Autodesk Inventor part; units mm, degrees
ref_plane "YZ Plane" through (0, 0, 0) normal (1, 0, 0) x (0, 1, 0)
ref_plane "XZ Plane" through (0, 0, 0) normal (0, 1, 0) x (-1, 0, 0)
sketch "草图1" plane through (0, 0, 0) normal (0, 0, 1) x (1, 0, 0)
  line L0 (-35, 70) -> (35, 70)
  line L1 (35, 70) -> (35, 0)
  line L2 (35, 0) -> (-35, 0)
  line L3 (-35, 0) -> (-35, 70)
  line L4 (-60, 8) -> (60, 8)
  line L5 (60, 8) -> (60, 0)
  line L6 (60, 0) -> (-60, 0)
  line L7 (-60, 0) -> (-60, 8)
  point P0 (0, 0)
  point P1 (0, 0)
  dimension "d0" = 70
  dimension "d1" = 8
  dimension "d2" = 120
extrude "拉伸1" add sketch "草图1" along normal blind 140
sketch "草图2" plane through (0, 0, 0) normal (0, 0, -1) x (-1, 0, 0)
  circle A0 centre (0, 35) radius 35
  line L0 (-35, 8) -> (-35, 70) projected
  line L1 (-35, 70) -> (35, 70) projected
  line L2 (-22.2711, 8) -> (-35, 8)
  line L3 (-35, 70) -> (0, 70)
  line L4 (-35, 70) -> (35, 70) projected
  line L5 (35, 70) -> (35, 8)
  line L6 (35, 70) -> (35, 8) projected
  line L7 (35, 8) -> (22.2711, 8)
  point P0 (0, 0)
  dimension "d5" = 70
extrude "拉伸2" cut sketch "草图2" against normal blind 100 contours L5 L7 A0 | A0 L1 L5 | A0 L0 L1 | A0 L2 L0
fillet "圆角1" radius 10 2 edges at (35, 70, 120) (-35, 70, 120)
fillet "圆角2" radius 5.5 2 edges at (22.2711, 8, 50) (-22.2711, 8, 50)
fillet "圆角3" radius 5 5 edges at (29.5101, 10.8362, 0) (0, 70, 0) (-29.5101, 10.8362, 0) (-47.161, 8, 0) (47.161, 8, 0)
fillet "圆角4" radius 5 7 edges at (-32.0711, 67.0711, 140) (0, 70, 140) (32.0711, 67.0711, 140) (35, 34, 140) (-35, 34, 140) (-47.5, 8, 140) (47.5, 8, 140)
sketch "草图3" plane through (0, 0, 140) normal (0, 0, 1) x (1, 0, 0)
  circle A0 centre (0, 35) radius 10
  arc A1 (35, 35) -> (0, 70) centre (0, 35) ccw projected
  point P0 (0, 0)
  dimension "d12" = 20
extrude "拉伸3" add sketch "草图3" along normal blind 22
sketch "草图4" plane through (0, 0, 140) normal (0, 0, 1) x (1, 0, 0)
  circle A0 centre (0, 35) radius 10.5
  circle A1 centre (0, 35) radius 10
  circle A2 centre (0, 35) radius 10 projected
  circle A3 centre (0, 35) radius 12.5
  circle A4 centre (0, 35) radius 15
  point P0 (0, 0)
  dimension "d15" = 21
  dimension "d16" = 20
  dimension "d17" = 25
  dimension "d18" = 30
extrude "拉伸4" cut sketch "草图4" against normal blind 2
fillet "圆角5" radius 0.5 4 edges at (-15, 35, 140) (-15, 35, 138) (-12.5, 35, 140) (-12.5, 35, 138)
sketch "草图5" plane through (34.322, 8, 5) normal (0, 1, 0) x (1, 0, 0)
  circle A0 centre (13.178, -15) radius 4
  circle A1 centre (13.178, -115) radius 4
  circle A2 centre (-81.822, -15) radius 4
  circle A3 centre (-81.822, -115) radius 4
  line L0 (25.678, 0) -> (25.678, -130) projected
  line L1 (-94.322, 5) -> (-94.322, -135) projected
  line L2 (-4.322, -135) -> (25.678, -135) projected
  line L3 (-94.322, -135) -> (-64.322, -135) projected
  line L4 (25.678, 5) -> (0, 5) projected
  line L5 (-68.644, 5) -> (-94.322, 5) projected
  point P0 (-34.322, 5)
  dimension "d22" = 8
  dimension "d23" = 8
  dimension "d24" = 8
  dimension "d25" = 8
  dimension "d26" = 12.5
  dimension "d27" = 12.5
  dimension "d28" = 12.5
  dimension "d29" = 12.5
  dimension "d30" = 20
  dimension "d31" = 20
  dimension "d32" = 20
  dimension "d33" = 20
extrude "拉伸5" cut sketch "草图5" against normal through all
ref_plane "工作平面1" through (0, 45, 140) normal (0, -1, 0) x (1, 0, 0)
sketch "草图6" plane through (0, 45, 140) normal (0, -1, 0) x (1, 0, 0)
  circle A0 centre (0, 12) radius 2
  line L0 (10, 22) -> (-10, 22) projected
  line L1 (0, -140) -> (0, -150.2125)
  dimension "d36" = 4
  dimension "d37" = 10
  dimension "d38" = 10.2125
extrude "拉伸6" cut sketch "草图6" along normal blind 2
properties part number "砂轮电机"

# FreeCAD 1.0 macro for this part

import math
import FreeCAD as App
import Part
import Sketcher
from FreeCAD import Vector
Q = App.Units.Quantity


def edges_at(feature, points):
    """Names of the edges that pass closest to the given points."""
    edges = feature.Shape.Edges
    near = lambda p: min(range(len(edges)), key=lambda i: edges[i].distToShape(Part.Vertex(*p))[0])
    return sorted({f"Edge{near(p) + 1}" for p in points})

doc = App.newDocument("Part")
params = doc.addObject("Spreadsheet::Sheet", "Params")
for row, (alias, value) in enumerate([
    ("sketch1_width", "70 mm"),
    ("sketch1_width2", "120 mm"),
    ("sketch1_height", "8 mm"),
    ("pad1_length", "140 mm"),
    ("sketch2_radius", "35 mm"),
    ("sketch2_height", "27 mm"),
    ("pocket1_length", "100 mm"),
    ("fillet_radius", "10 mm"),
    ("fillet2_radius", "5.5 mm"),
    ("fillet3_radius", "5 mm"),
    ("fillet4_radius", "5 mm"),
    ("sketch3_diameter", "20 mm"),
    ("pad2_length", "22 mm"),
    ("sketch4_diameter", "21 mm"),
    ("sketch4_diameter2", "20 mm"),
    ("sketch4_diameter3", "30 mm"),
    ("sketch4_diameter4", "25 mm"),
    ("pocket2_length", "2 mm"),
    ("fillet5_radius", "0.5 mm"),
    ("sketch5_diameter", "8 mm"),
    ("sketch6_diameter", "4 mm"),
    ("pocket4_length", "2 mm"),
], start=1):
    params.set(f"A{row}", alias)
    params.set(f"B{row}", "=" + value)
    params.setAlias(f"B{row}", alias)

body = doc.addObject("PartDesign::Body", "Body")

# Sketch on XY plane
sketch1 = body.newObject("Sketcher::SketchObject", "Sketch")
sketch1.AttachmentSupport = (doc.getObject("XY_Plane"), [""])
sketch1.MapMode = "FlatFace"
sketch1.addGeometry([
    Part.LineSegment(Vector(35, 70, 0), Vector(-35, 70, 0)),  # 0
    Part.LineSegment(Vector(-35, 70, 0), Vector(-35, 8, 0)),  # 1
    Part.LineSegment(Vector(-35, 8, 0), Vector(-60, 8, 0)),  # 2
    Part.LineSegment(Vector(-60, 8, 0), Vector(-60, 0, 0)),  # 3
    Part.LineSegment(Vector(-60, 0, 0), Vector(60, 0, 0)),  # 4
    Part.LineSegment(Vector(60, 0, 0), Vector(60, 8, 0)),  # 5
    Part.LineSegment(Vector(60, 8, 0), Vector(35, 8, 0)),  # 6
    Part.LineSegment(Vector(35, 8, 0), Vector(35, 70, 0)),  # 7
], False)
sketch1.addConstraint([
    Sketcher.Constraint("Coincident", 0, 2, 1, 1),
    Sketcher.Constraint("Coincident", 1, 2, 2, 1),
    Sketcher.Constraint("Coincident", 2, 2, 3, 1),
    Sketcher.Constraint("Coincident", 3, 2, 4, 1),
    Sketcher.Constraint("Coincident", 4, 2, 5, 1),
    Sketcher.Constraint("Coincident", 5, 2, 6, 1),
    Sketcher.Constraint("Coincident", 6, 2, 7, 1),
    Sketcher.Constraint("Coincident", 7, 2, 0, 1),
    Sketcher.Constraint("Horizontal", 0),
    Sketcher.Constraint("Vertical", 1),
    Sketcher.Constraint("Horizontal", 2),
    Sketcher.Constraint("Vertical", 3),
    Sketcher.Constraint("Horizontal", 4),
    Sketcher.Constraint("Vertical", 5),
    Sketcher.Constraint("Horizontal", 6),
    Sketcher.Constraint("Vertical", 7),
    Sketcher.Constraint("Symmetric", 3, 2, 4, 2, -1, 1),
    Sketcher.Constraint("Symmetric", 1, 2, 6, 2, -2),
    Sketcher.Constraint("DistanceX", 0, 2, 0, 1, Q("70 mm")),
    Sketcher.Constraint("DistanceX", 4, 1, 4, 2, Q("120 mm")),
    Sketcher.Constraint("DistanceY", 3, 2, 3, 1, Q("8 mm")),
    Sketcher.Constraint("DistanceY", -1, 1, 0, 2, Q("70 mm")),
])
sketch1.setExpression("Constraints[18]", "Params.sketch1_width")
sketch1.setExpression("Constraints[19]", "Params.sketch1_width2")
sketch1.setExpression("Constraints[20]", "Params.sketch1_height")
pad1 = body.newObject("PartDesign::Pad", "Pad")
pad1.Profile = sketch1
pad1.setExpression("Length", "Params.pad1_length")

# Sketch on XY plane
sketch2 = body.newObject("Sketcher::SketchObject", "Sketch001")
sketch2.AttachmentSupport = (doc.getObject("XY_Plane"), [""])
sketch2.MapMode = "FlatFace"
sketch2.addGeometry([
    Part.LineSegment(Vector(-35, 8, 0), Vector(-35, 35, 0)),  # 0
    Part.ArcOfCircle(Part.Circle(Vector(0, 35, 0), Vector(0, 0, 1), 35), math.radians(180), math.radians(230)),  # 1
    Part.LineSegment(Vector(-22, 8, 0), Vector(-35, 8, 0)),  # 2
    Part.ArcOfCircle(Part.Circle(Vector(0, 35, 0), Vector(0, 0, 1), 35), math.radians(90), math.radians(180)),  # 3
    Part.LineSegment(Vector(-35, 35, 0), Vector(-35, 70, 0)),  # 4
    Part.LineSegment(Vector(-35, 70, 0), Vector(0, 70, 0)),  # 5
    Part.ArcOfCircle(Part.Circle(Vector(0, 35, 0), Vector(0, 0, 1), 35), math.radians(0), math.radians(90)),  # 6
    Part.LineSegment(Vector(0, 70, 0), Vector(35, 70, 0)),  # 7
    Part.LineSegment(Vector(35, 70, 0), Vector(35, 35, 0)),  # 8
    Part.ArcOfCircle(Part.Circle(Vector(0, 35, 0), Vector(0, 0, 1), 35), math.radians(-50), math.radians(0)),  # 9
    Part.LineSegment(Vector(35, 35, 0), Vector(35, 8, 0)),  # 10
    Part.LineSegment(Vector(35, 8, 0), Vector(22, 8, 0)),  # 11
], False)
sketch2.addConstraint([
    Sketcher.Constraint("Tangent", 0, 2, 1, 1),
    Sketcher.Constraint("Coincident", 1, 2, 2, 1),
    Sketcher.Constraint("Coincident", 2, 2, 0, 1),
    Sketcher.Constraint("Tangent", 3, 2, 4, 1),
    Sketcher.Constraint("Coincident", 4, 2, 5, 1),
    Sketcher.Constraint("Tangent", 5, 2, 3, 1),
    Sketcher.Constraint("Tangent", 6, 2, 7, 1),
    Sketcher.Constraint("Coincident", 7, 2, 8, 1),
    Sketcher.Constraint("Tangent", 8, 2, 6, 1),
    Sketcher.Constraint("Tangent", 9, 2, 10, 1),
    Sketcher.Constraint("Coincident", 10, 2, 11, 1),
    Sketcher.Constraint("Coincident", 11, 2, 9, 1),
    Sketcher.Constraint("Vertical", 0),
    Sketcher.Constraint("Horizontal", 2),
    Sketcher.Constraint("Vertical", 4),
    Sketcher.Constraint("Horizontal", 5),
    Sketcher.Constraint("Horizontal", 7),
    Sketcher.Constraint("Vertical", 8),
    Sketcher.Constraint("Vertical", 10),
    Sketcher.Constraint("Horizontal", 11),
    Sketcher.Constraint("Coincident", 3, 3, 1, 3),
    Sketcher.Constraint("Coincident", 6, 3, 1, 3),
    Sketcher.Constraint("Coincident", 9, 3, 1, 3),
    Sketcher.Constraint("Equal", 1, 3),
    Sketcher.Constraint("Equal", 3, 6),
    Sketcher.Constraint("Equal", 6, 9),
    Sketcher.Constraint("Symmetric", 2, 2, 10, 2, -2),
    Sketcher.Constraint("Radius", 1, Q("35 mm")),
    Sketcher.Constraint("DistanceY", -1, 1, 4, 2, Q("70 mm")),
    Sketcher.Constraint("DistanceY", 0, 1, 0, 2, Q("27 mm")),
])
sketch2.setExpression("Constraints[27]", "Params.sketch2_radius")
sketch2.setExpression("Constraints[29]", "Params.sketch2_height")
pocket1 = body.newObject("PartDesign::Pocket", "Pocket")
pocket1.Profile = sketch2
pocket1.setExpression("Length", "Params.pocket1_length")
pocket1.Reversed = True
doc.recompute()

fillet = body.newObject("PartDesign::Fillet", "Fillet")
fillet.Base = (pocket1, edges_at(pocket1, [(35, 70, 120), (-35, 70, 120)]))
fillet.setExpression("Radius", "Params.fillet_radius")
doc.recompute()

fillet2 = body.newObject("PartDesign::Fillet", "Fillet001")
fillet2.Base = (fillet, edges_at(fillet, [(22.271, 8, 50), (-22.271, 8, 50)]))
fillet2.setExpression("Radius", "Params.fillet2_radius")
doc.recompute()

fillet3 = body.newObject("PartDesign::Fillet", "Fillet002")
fillet3.Base = (fillet2, edges_at(fillet2, [
    (29.51, 10.836, 0),
    (0, 70, 0),
    (-29.51, 10.836, 0),
    (-47.161, 8, 0),
    (47.161, 8, 0),
]))
fillet3.setExpression("Radius", "Params.fillet3_radius")
doc.recompute()

fillet4 = body.newObject("PartDesign::Fillet", "Fillet003")
fillet4.Base = (fillet3, edges_at(fillet3, [
    (-32.071, 67.071, 140),
    (0, 70, 140),
    (32.071, 67.071, 140),
    (35, 34, 140),
    (-35, 34, 140),
    (-47.5, 8, 140),
    (47.5, 8, 140),
]))
fillet4.setExpression("Radius", "Params.fillet4_radius")

# Sketch on XY plane
sketch3 = body.newObject("Sketcher::SketchObject", "Sketch002")
sketch3.AttachmentSupport = (doc.getObject("XY_Plane"), [""])
sketch3.MapMode = "FlatFace"
sketch3.AttachmentOffset = App.Placement(Vector(0, 0, 140), App.Rotation())
sketch3.addGeometry(Part.Circle(Vector(0, 35, 0), Vector(0, 0, 1), 10), False)
sketch3.addConstraint([
    Sketcher.Constraint("PointOnObject", 0, 3, -2),
    Sketcher.Constraint("Diameter", 0, Q("20 mm")),
    Sketcher.Constraint("DistanceY", -1, 1, 0, 3, Q("35 mm")),
])
sketch3.setExpression("Constraints[1]", "Params.sketch3_diameter")
pad2 = body.newObject("PartDesign::Pad", "Pad001")
pad2.Profile = sketch3
pad2.setExpression("Length", "Params.pad2_length")

# Sketch on XY plane
sketch4 = body.newObject("Sketcher::SketchObject", "Sketch003")
sketch4.AttachmentSupport = (doc.getObject("XY_Plane"), [""])
sketch4.MapMode = "FlatFace"
sketch4.AttachmentOffset = App.Placement(Vector(0, 0, 140), App.Rotation())
sketch4.addGeometry([
    Part.Circle(Vector(0, 35, 0), Vector(0, 0, 1), 10),
    Part.Circle(Vector(0, 35, 0), Vector(0, 0, 1), 10),
    Part.Circle(Vector(0, 35, 0), Vector(0, 0, 1), 15),
    Part.Circle(Vector(0, 35, 0), Vector(0, 0, 1), 12),
], False)
sketch4.addConstraint([
    Sketcher.Constraint("Coincident", 1, 3, 0, 3),
    Sketcher.Constraint("Coincident", 2, 3, 0, 3),
    Sketcher.Constraint("Coincident", 3, 3, 0, 3),
    Sketcher.Constraint("PointOnObject", 0, 3, -2),
    Sketcher.Constraint("Diameter", 0, Q("21 mm")),
    Sketcher.Constraint("Diameter", 1, Q("20 mm")),
    Sketcher.Constraint("Diameter", 2, Q("30 mm")),
    Sketcher.Constraint("Diameter", 3, Q("25 mm")),
    Sketcher.Constraint("DistanceY", -1, 1, 0, 3, Q("35 mm")),
])
sketch4.setExpression("Constraints[4]", "Params.sketch4_diameter")
sketch4.setExpression("Constraints[5]", "Params.sketch4_diameter2")
sketch4.setExpression("Constraints[6]", "Params.sketch4_diameter3")
sketch4.setExpression("Constraints[7]", "Params.sketch4_diameter4")
pocket2 = body.newObject("PartDesign::Pocket", "Pocket001")
pocket2.Profile = sketch4
pocket2.setExpression("Length", "Params.pocket2_length")
doc.recompute()

fillet5 = body.newObject("PartDesign::Fillet", "Fillet004")
fillet5.Base = (pocket2, edges_at(pocket2, [
    (-15, 35, 140),
    (-15, 35, 138),
    (-12.5, 35, 140),
    (-12.5, 35, 138),
]))
fillet5.setExpression("Radius", "Params.fillet5_radius")

# Sketch on XZ plane
sketch5 = body.newObject("Sketcher::SketchObject", "Sketch004")
sketch5.AttachmentSupport = (doc.getObject("XZ_Plane"), [""])
sketch5.MapMode = "FlatFace"
sketch5.AttachmentOffset = App.Placement(Vector(0, 0, -8), App.Rotation())
sketch5.addGeometry([
    Part.Circle(Vector(47.5, 20, 0), Vector(0, 0, 1), 4),
    Part.Circle(Vector(47.5, 120, 0), Vector(0, 0, 1), 4),
    Part.Circle(Vector(-47.5, 20, 0), Vector(0, 0, 1), 4),
    Part.Circle(Vector(-47.5, 120, 0), Vector(0, 0, 1), 4),
], False)
sketch5.addConstraint([
    Sketcher.Constraint("Equal", 0, 1),
    Sketcher.Constraint("Equal", 1, 2),
    Sketcher.Constraint("Equal", 2, 3),
    Sketcher.Constraint("Symmetric", 0, 3, 2, 3, -2),
    Sketcher.Constraint("Symmetric", 1, 3, 3, 3, -2),
    Sketcher.Constraint("Vertical", 0, 3, 1, 3),
    Sketcher.Constraint("Diameter", 0, Q("8 mm")),
    Sketcher.Constraint("DistanceY", -1, 1, 0, 3, Q("20 mm")),
    Sketcher.Constraint("DistanceY", -1, 1, 1, 3, Q("120 mm")),
    Sketcher.Constraint("DistanceX", 2, 3, 0, 3, Q("95 mm")),
])
sketch5.setExpression("Constraints[6]", "Params.sketch5_diameter")
pocket3 = body.newObject("PartDesign::Pocket", "Pocket002")
pocket3.Profile = sketch5
pocket3.Type = "ThroughAll"
pocket3.Reversed = True

# Sketch on XZ plane
sketch6 = body.newObject("Sketcher::SketchObject", "Sketch005")
sketch6.AttachmentSupport = (doc.getObject("XZ_Plane"), [""])
sketch6.MapMode = "FlatFace"
sketch6.AttachmentOffset = App.Placement(Vector(0, 0, -45), App.Rotation())
sketch6.addGeometry(Part.Circle(Vector(0, 152, 0), Vector(0, 0, 1), 2), False)
sketch6.addConstraint([
    Sketcher.Constraint("PointOnObject", 0, 3, -2),
    Sketcher.Constraint("Diameter", 0, Q("4 mm")),
    Sketcher.Constraint("DistanceY", -1, 1, 0, 3, Q("152 mm")),
])
sketch6.setExpression("Constraints[1]", "Params.sketch6_diameter")
pocket4 = body.newObject("PartDesign::Pocket", "Pocket003")
pocket4.Profile = sketch6
pocket4.setExpression("Length", "Params.pocket4_length")
pocket4.Reversed = True

doc.recompute()
